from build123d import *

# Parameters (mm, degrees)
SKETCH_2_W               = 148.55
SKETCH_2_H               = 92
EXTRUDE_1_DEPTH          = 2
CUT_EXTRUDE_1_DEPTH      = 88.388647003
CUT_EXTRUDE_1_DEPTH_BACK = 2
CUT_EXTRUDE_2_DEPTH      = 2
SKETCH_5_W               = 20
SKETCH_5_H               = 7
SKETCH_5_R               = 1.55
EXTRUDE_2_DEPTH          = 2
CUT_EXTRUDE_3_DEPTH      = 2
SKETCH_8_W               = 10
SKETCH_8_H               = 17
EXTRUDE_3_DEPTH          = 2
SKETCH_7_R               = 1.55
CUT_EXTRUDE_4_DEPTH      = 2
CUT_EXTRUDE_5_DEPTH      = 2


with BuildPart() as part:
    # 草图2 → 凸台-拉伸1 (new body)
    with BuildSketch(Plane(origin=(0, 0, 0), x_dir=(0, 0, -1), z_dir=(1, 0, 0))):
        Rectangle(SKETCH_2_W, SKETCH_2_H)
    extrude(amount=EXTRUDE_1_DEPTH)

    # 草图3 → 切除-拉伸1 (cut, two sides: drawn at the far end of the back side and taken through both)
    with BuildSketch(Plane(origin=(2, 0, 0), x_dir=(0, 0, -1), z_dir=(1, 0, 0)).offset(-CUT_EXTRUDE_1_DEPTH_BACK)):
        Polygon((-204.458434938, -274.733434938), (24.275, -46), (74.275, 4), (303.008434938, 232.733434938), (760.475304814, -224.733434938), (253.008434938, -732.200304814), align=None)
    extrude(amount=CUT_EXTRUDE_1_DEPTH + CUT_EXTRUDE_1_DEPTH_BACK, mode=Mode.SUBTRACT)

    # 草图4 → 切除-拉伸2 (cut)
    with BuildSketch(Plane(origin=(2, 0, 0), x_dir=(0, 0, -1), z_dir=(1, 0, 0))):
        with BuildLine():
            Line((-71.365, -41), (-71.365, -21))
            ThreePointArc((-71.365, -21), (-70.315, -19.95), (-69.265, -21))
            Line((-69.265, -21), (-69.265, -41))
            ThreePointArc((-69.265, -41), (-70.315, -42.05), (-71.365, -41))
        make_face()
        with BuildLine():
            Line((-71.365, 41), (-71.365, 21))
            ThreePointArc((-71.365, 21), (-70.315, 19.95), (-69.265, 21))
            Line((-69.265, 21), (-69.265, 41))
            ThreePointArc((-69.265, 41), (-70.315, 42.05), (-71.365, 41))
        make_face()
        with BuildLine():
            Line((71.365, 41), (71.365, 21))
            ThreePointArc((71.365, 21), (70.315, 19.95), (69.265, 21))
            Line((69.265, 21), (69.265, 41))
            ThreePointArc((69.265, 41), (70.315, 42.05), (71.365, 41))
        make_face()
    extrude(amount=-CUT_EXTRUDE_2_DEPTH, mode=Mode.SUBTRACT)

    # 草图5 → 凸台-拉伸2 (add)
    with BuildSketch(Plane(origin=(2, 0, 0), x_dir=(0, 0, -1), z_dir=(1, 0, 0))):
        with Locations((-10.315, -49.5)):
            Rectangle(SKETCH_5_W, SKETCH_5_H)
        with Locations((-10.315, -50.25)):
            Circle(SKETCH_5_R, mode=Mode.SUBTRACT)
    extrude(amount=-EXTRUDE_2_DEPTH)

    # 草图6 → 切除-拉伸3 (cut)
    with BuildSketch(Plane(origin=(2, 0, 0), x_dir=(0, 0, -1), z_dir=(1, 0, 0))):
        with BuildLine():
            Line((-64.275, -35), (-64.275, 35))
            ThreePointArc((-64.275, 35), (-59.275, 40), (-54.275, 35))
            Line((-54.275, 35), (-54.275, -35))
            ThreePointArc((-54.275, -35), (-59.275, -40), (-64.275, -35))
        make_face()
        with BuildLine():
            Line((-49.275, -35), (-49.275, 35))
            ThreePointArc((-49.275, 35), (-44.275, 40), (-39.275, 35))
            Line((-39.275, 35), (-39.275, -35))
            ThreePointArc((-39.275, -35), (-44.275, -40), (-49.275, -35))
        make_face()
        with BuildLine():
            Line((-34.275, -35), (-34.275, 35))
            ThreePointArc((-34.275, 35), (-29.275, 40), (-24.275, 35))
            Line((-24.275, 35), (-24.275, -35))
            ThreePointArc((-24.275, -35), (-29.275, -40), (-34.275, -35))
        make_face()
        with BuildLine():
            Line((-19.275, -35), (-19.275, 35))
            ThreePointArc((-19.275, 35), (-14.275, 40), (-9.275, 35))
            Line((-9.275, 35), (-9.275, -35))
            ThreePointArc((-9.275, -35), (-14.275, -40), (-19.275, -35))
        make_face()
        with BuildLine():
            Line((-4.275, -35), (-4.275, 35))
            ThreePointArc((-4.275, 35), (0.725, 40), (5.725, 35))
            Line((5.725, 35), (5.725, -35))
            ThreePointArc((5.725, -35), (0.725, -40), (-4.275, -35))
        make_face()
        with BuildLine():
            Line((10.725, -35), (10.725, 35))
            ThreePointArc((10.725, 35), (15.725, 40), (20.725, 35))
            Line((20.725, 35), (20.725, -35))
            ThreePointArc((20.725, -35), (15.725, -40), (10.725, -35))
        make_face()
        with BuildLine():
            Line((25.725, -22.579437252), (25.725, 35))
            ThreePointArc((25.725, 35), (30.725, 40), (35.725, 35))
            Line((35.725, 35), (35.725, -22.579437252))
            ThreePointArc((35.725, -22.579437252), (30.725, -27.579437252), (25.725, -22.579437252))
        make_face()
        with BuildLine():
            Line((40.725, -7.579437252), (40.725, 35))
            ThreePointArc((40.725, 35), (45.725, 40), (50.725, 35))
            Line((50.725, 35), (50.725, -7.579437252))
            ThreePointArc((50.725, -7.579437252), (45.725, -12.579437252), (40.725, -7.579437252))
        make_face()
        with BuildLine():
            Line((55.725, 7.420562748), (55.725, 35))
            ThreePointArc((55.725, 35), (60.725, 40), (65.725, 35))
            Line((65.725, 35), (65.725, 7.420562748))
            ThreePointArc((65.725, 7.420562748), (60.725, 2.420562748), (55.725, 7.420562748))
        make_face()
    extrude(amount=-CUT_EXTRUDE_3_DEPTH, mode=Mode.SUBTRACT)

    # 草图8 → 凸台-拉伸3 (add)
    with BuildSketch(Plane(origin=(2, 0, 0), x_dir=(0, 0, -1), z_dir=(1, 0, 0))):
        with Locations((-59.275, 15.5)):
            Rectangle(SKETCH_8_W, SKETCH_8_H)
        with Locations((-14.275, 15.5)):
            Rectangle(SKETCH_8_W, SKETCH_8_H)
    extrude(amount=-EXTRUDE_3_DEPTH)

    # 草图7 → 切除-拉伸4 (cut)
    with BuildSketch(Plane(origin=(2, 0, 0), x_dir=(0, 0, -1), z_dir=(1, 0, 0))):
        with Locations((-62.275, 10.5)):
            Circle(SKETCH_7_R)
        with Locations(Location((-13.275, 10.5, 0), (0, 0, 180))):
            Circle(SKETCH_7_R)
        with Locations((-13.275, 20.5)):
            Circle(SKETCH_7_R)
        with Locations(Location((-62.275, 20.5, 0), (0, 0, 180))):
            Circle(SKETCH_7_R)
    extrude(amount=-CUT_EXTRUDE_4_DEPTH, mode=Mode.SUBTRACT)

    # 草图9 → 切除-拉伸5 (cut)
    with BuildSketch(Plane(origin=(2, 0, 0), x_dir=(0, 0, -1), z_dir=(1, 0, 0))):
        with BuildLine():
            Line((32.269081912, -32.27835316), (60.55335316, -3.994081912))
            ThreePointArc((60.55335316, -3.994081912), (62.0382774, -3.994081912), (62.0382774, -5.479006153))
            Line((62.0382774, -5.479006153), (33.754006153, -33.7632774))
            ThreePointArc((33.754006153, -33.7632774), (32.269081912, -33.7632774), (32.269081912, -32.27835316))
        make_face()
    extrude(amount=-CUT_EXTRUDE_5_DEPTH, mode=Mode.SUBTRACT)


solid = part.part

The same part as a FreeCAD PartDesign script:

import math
import FreeCAD as App
import Part
import Sketcher
from FreeCAD import Vector
Q = App.Units.Quantity


def add_polygon(sketch, points):
    """Adds a closed chain of lines whose ends are joined by coincident constraints."""
    first, n = sketch.GeometryCount, len(points)
    for a, b in zip(points, points[1:] + points[:1]):
        sketch.addGeometry(Part.LineSegment(App.Vector(*a, 0), App.Vector(*b, 0)), False)
    for i in range(n):
        sketch.addConstraint(Sketcher.Constraint("Coincident", first + i, 2, first + (i + 1) % n, 1))

doc = App.newDocument("Part")
body = doc.addObject("PartDesign::Body", "Body")

sketch1 = body.newObject("Sketcher::SketchObject", "Sketch")
sketch1.AttachmentSupport = (doc.getObject("YZ_Plane"), [""])
sketch1.MapMode = "FlatFace"
add_polygon(sketch1, [(46, 74.275), (-46, 74.275), (-46, -74.275), (46, -74.275)])
sketch1.addConstraint(Sketcher.Constraint("Horizontal", 0))
sketch1.addConstraint(Sketcher.Constraint("Vertical", 1))
sketch1.addConstraint(Sketcher.Constraint("Horizontal", 2))
sketch1.addConstraint(Sketcher.Constraint("Vertical", 3))
sketch1.addConstraint(Sketcher.Constraint("Symmetric", 0, 2, 2, 2, -1, 1))
sketch1.addConstraint(Sketcher.Constraint("DistanceX", 0, 2, 0, 1, 92.0))
sketch1.addConstraint(Sketcher.Constraint("DistanceY", 1, 2, 1, 1, 148.55))
pad1 = body.newObject("PartDesign::Pad", "Pad")
pad1.Profile = sketch1
pad1.Length = 2

sketch2 = body.newObject("Sketcher::SketchObject", "Sketch001")
sketch2.AttachmentSupport = (doc.getObject("YZ_Plane"), [""])
sketch2.MapMode = "FlatFace"
sketch2.AttachmentOffset = App.Placement(Vector(0, 0, 2), App.Rotation())
add_polygon(sketch2, [(232.733435, -303.008435), (-274.733435, 204.458435), (-732.200305, -253.008435), (-224.733435, -760.475305)])
sketch2.addConstraint(Sketcher.Constraint("Perpendicular", 0, 1))
sketch2.addConstraint(Sketcher.Constraint("Perpendicular", 1, 2))
sketch2.addConstraint(Sketcher.Constraint("Perpendicular", 2, 3))
sketch2.addConstraint(Sketcher.Constraint("Angle", 0, Q("135 deg")))
sketch2.addConstraint(Sketcher.Constraint("DistanceX", 0, 2, 2, 2, 50.0))
sketch2.addConstraint(Sketcher.Constraint("Distance", 0, 717.66653))
sketch2.addConstraint(Sketcher.Constraint("DistanceX", 0, 2, -1, 1, 274.733435))
sketch2.addConstraint(Sketcher.Constraint("DistanceY", -1, 1, 0, 2, 204.458435))
pocket1 = body.newObject("PartDesign::Pocket", "Pocket")
pocket1.Profile = sketch2
pocket1.Type = "ThroughAll"
pocket1.Midplane = True

sketch3 = body.newObject("Sketcher::SketchObject", "Sketch002")
sketch3.AttachmentSupport = (doc.getObject("YZ_Plane"), [""])
sketch3.MapMode = "FlatFace"
sketch3.AttachmentOffset = App.Placement(Vector(0, 0, 2), App.Rotation())
sketch3.addGeometry(Part.LineSegment(Vector(-21, 71.365, 0), Vector(-41, 71.365, 0)), False)
sketch3.addGeometry(Part.ArcOfCircle(Part.Circle(Vector(-41, 70.315, 0), Vector(0, 0, 1), 1.05), math.radians(90), math.radians(270)), False)
sketch3.addGeometry(Part.LineSegment(Vector(-41, 69.265, 0), Vector(-21, 69.265, 0)), False)
sketch3.addGeometry(Part.ArcOfCircle(Part.Circle(Vector(-21, 70.315, 0), Vector(0, 0, 1), 1.05), math.radians(-90), math.radians(90)), False)
sketch3.addGeometry(Part.LineSegment(Vector(41, 71.365, 0), Vector(21, 71.365, 0)), False)
sketch3.addGeometry(Part.ArcOfCircle(Part.Circle(Vector(21, 70.315, 0), Vector(0, 0, 1), 1.05), math.radians(90), math.radians(270)), False)
sketch3.addGeometry(Part.LineSegment(Vector(21, 69.265, 0), Vector(41, 69.265, 0)), False)
sketch3.addGeometry(Part.ArcOfCircle(Part.Circle(Vector(41, 70.315, 0), Vector(0, 0, 1), 1.05), math.radians(-90), math.radians(90)), False)
sketch3.addGeometry(Part.LineSegment(Vector(21, -71.365, 0), Vector(41, -71.365, 0)), False)
sketch3.addGeometry(Part.ArcOfCircle(Part.Circle(Vector(41, -70.315, 0), Vector(0, 0, 1), 1.05), math.radians(-90), math.radians(90)), False)
sketch3.addGeometry(Part.LineSegment(Vector(41, -69.265, 0), Vector(21, -69.265, 0)), False)
sketch3.addGeometry(Part.ArcOfCircle(Part.Circle(Vector(21, -70.315, 0), Vector(0, 0, 1), 1.05), math.radians(90), math.radians(270)), False)
sketch3.addConstraint(Sketcher.Constraint("Tangent", 0, 2, 1, 1))
sketch3.addConstraint(Sketcher.Constraint("Tangent", 1, 2, 2, 1))
sketch3.addConstraint(Sketcher.Constraint("Tangent", 2, 2, 3, 1))
sketch3.addConstraint(Sketcher.Constraint("Tangent", 3, 2, 0, 1))
sketch3.addConstraint(Sketcher.Constraint("Tangent", 4, 2, 5, 1))
sketch3.addConstraint(Sketcher.Constraint("Tangent", 5, 2, 6, 1))
sketch3.addConstraint(Sketcher.Constraint("Tangent", 6, 2, 7, 1))
sketch3.addConstraint(Sketcher.Constraint("Tangent", 7, 2, 4, 1))
sketch3.addConstraint(Sketcher.Constraint("Tangent", 8, 2, 9, 1))
sketch3.addConstraint(Sketcher.Constraint("Tangent", 9, 2, 10, 1))
sketch3.addConstraint(Sketcher.Constraint("Tangent", 10, 2, 11, 1))
sketch3.addConstraint(Sketcher.Constraint("Tangent", 11, 2, 8, 1))
sketch3.addConstraint(Sketcher.Constraint("Horizontal", 0))
sketch3.addConstraint(Sketcher.Constraint("Horizontal", 2))
sketch3.addConstraint(Sketcher.Constraint("Horizontal", 4))
sketch3.addConstraint(Sketcher.Constraint("Horizontal", 6))
sketch3.addConstraint(Sketcher.Constraint("Horizontal", 8))
sketch3.addConstraint(Sketcher.Constraint("Horizontal", 10))
sketch3.addConstraint(Sketcher.Constraint("Equal", 3, 5))
sketch3.addConstraint(Sketcher.Constraint("Equal", 7, 9))
sketch3.addConstraint(Sketcher.Constraint("Symmetric", 1, 3, 9, 3, -1, 1))
sketch3.addConstraint(Sketcher.Constraint("Symmetric", 3, 3, 5, 3, -2))
sketch3.addConstraint(Sketcher.Constraint("Vertical", 7, 3, 9, 3))
sketch3.addConstraint(Sketcher.Constraint("Vertical", 5, 3, 11, 3))
sketch3.addConstraint(Sketcher.Constraint("DistanceX", 0, 2, 0, 1, 20.0))
sketch3.addConstraint(Sketcher.Constraint("Radius", 1, 1.05))
sketch3.addConstraint(Sketcher.Constraint("DistanceX", 1, 3, -1, 1, 41.0))
sketch3.addConstraint(Sketcher.Constraint("DistanceY", 9, 3, 7, 3, 140.63))
pocket2 = body.newObject("PartDesign::Pocket", "Pocket001")
pocket2.Profile = sketch3
pocket2.Length = 2

sketch4 = body.newObject("Sketcher::SketchObject", "Sketch003")
sketch4.AttachmentSupport = (doc.getObject("YZ_Plane"), [""])
sketch4.MapMode = "FlatFace"
sketch4.AttachmentOffset = App.Placement(Vector(0, 0, 2), App.Rotation())
add_polygon(sketch4, [(-46, 20.315), (-53, 20.315), (-53, 0.315), (-46, 0.315)])
sketch4.addGeometry(Part.Circle(Vector(-50.25, 10.315, 0), Vector(0, 0, 1), 1.55), False)
sketch4.addConstraint(Sketcher.Constraint("Horizontal", 0))
sketch4.addConstraint(Sketcher.Constraint("Vertical", 1))
sketch4.addConstraint(Sketcher.Constraint("Horizontal", 2))
sketch4.addConstraint(Sketcher.Constraint("Vertical", 3))
sketch4.addConstraint(Sketcher.Constraint("Diameter", 4, 3.1))
sketch4.addConstraint(Sketcher.Constraint("DistanceX", 0, 2, 0, 1, 7.0))
sketch4.addConstraint(Sketcher.Constraint("DistanceY", 1, 2, 1, 1, 20.0))
sketch4.addConstraint(Sketcher.Constraint("DistanceX", 0, 2, -1, 1, 53.0))
sketch4.addConstraint(Sketcher.Constraint("DistanceY", 4, 3, 0, 2, 10.0))
sketch4.addConstraint(Sketcher.Constraint("DistanceX", 4, 3, -1, 1, 50.25))
sketch4.addConstraint(Sketcher.Constraint("DistanceY", -1, 1, 4, 3, 10.315))
pad2 = body.newObject("PartDesign::Pad", "Pad001")
pad2.Profile = sketch4
pad2.Length = 2
pad2.Reversed = True

sketch5 = body.newObject("Sketcher::SketchObject", "Sketch004")
sketch5.AttachmentSupport = (doc.getObject("YZ_Plane"), [""])
sketch5.MapMode = "FlatFace"
sketch5.AttachmentOffset = App.Placement(Vector(0, 0, 2), App.Rotation())
sketch5.addGeometry(Part.LineSegment(Vector(35, 64.275, 0), Vector(-35, 64.275, 0)), False)
sketch5.addGeometry(Part.ArcOfCircle(Part.Circle(Vector(-35, 59.275, 0), Vector(0, 0, 1), 5), math.radians(90), math.radians(270)), False)
sketch5.addGeometry(Part.LineSegment(Vector(-35, 54.275, 0), Vector(35, 54.275, 0)), False)
sketch5.addGeometry(Part.ArcOfCircle(Part.Circle(Vector(35, 59.275, 0), Vector(0, 0, 1), 5), math.radians(-90), math.radians(90)), False)
sketch5.addGeometry(Part.LineSegment(Vector(35, 49.275, 0), Vector(-35, 49.275, 0)), False)
sketch5.addGeometry(Part.ArcOfCircle(Part.Circle(Vector(-35, 44.275, 0), Vector(0, 0, 1), 5), math.radians(90), math.radians(270)), False)
sketch5.addGeometry(Part.LineSegment(Vector(-35, 39.275, 0), Vector(35, 39.275, 0)), False)
sketch5.addGeometry(Part.ArcOfCircle(Part.Circle(Vector(35, 44.275, 0), Vector(0, 0, 1), 5), math.radians(-90), math.radians(90)), False)
sketch5.addGeometry(Part.LineSegment(Vector(35, 34.275, 0), Vector(-35, 34.275, 0)), False)
sketch5.addGeometry(Part.ArcOfCircle(Part.Circle(Vector(-35, 29.275, 0), Vector(0, 0, 1), 5), math.radians(90), math.radians(270)), False)
sketch5.addGeometry(Part.LineSegment(Vector(-35, 24.275, 0), Vector(35, 24.275, 0)), False)
sketch5.addGeometry(Part.ArcOfCircle(Part.Circle(Vector(35, 29.275, 0), Vector(0, 0, 1), 5), math.radians(-90), math.radians(90)), False)
sketch5.addGeometry(Part.LineSegment(Vector(35, 19.275, 0), Vector(-35, 19.275, 0)), False)
sketch5.addGeometry(Part.ArcOfCircle(Part.Circle(Vector(-35, 14.275, 0), Vector(0, 0, 1), 5), math.radians(90), math.radians(270)), False)
sketch5.addGeometry(Part.LineSegment(Vector(-35, 9.275, 0), Vector(35, 9.275, 0)), False)
sketch5.addGeometry(Part.ArcOfCircle(Part.Circle(Vector(35, 14.275, 0), Vector(0, 0, 1), 5), math.radians(-90), math.radians(90)), False)
sketch5.addGeometry(Part.LineSegment(Vector(35, 4.275, 0), Vector(-35, 4.275, 0)), False)
sketch5.addGeometry(Part.ArcOfCircle(Part.Circle(Vector(-35, -0.725, 0), Vector(0, 0, 1), 5), math.radians(90), math.radians(270)), False)
sketch5.addGeometry(Part.LineSegment(Vector(-35, -5.725, 0), Vector(35, -5.725, 0)), False)
sketch5.addGeometry(Part.ArcOfCircle(Part.Circle(Vector(35, -0.725, 0), Vector(0, 0, 1), 5), math.radians(-90), math.radians(90)), False)
sketch5.addGeometry(Part.LineSegment(Vector(35, -10.725, 0), Vector(-35, -10.725, 0)), False)
sketch5.addGeometry(Part.ArcOfCircle(Part.Circle(Vector(-35, -15.725, 0), Vector(0, 0, 1), 5), math.radians(90), math.radians(270)), False)
sketch5.addGeometry(Part.LineSegment(Vector(-35, -20.725, 0), Vector(35, -20.725, 0)), False)
sketch5.addGeometry(Part.ArcOfCircle(Part.Circle(Vector(35, -15.725, 0), Vector(0, 0, 1), 5), math.radians(-90), math.radians(90)), False)
sketch5.addGeometry(Part.LineSegment(Vector(35, -25.725, 0), Vector(-22.579437, -25.725, 0)), False)
sketch5.addGeometry(Part.ArcOfCircle(Part.Circle(Vector(-22.579437, -30.725, 0), Vector(0, 0, 1), 5), math.radians(90), math.radians(270)), False)
sketch5.addGeometry(Part.LineSegment(Vector(-22.579437, -35.725, 0), Vector(35, -35.725, 0)), False)
sketch5.addGeometry(Part.ArcOfCircle(Part.Circle(Vector(35, -30.725, 0), Vector(0, 0, 1), 5), math.radians(-90), math.radians(90)), False)
sketch5.addGeometry(Part.LineSegment(Vector(35, -40.725, 0), Vector(-7.579437, -40.725, 0)), False)
sketch5.addGeometry(Part.ArcOfCircle(Part.Circle(Vector(-7.579437, -45.725, 0), Vector(0, 0, 1), 5), math.radians(90), math.radians(270)), False)
sketch5.addGeometry(Part.LineSegment(Vector(-7.579437, -50.725, 0), Vector(35, -50.725, 0)), False)
sketch5.addGeometry(Part.ArcOfCircle(Part.Circle(Vector(35, -45.725, 0), Vector(0, 0, 1), 5), math.radians(-90), math.radians(90)), False)
sketch5.addGeometry(Part.LineSegment(Vector(35, -55.725, 0), Vector(7.420563, -55.725, 0)), False)
sketch5.addGeometry(Part.ArcOfCircle(Part.Circle(Vector(7.420563, -60.725, 0), Vector(0, 0, 1), 5), math.radians(90), math.radians(270)), False)
sketch5.addGeometry(Part.LineSegment(Vector(7.420563, -65.725, 0), Vector(35, -65.725, 0)), False)
sketch5.addGeometry(Part.ArcOfCircle(Part.Circle(Vector(35, -60.725, 0), Vector(0, 0, 1), 5), math.radians(-90), math.radians(90)), False)
sketch5.addConstraint(Sketcher.Constraint("Tangent", 0, 2, 1, 1))
sketch5.addConstraint(Sketcher.Constraint("Tangent", 1, 2, 2, 1))
sketch5.addConstraint(Sketcher.Constraint("Tangent", 2, 2, 3, 1))
sketch5.addConstraint(Sketcher.Constraint("Tangent", 3, 2, 0, 1))
sketch5.addConstraint(Sketcher.Constraint("Tangent", 4, 2, 5, 1))
sketch5.addConstraint(Sketcher.Constraint("Tangent", 5, 2, 6, 1))
sketch5.addConstraint(Sketcher.Constraint("Tangent", 6, 2, 7, 1))
sketch5.addConstraint(Sketcher.Constraint("Tangent", 7, 2, 4, 1))
sketch5.addConstraint(Sketcher.Constraint("Tangent", 8, 2, 9, 1))
sketch5.addConstraint(Sketcher.Constraint("Tangent", 9, 2, 10, 1))
sketch5.addConstraint(Sketcher.Constraint("Tangent", 10, 2, 11, 1))
sketch5.addConstraint(Sketcher.Constraint("Tangent", 11, 2, 8, 1))
sketch5.addConstraint(Sketcher.Constraint("Tangent", 12, 2, 13, 1))
sketch5.addConstraint(Sketcher.Constraint("Tangent", 13, 2, 14, 1))
sketch5.addConstraint(Sketcher.Constraint("Tangent", 14, 2, 15, 1))
sketch5.addConstraint(Sketcher.Constraint("Tangent", 15, 2, 12, 1))
sketch5.addConstraint(Sketcher.Constraint("Tangent", 16, 2, 17, 1))
sketch5.addConstraint(Sketcher.Constraint("Tangent", 17, 2, 18, 1))
sketch5.addConstraint(Sketcher.Constraint("Tangent", 18, 2, 19, 1))
sketch5.addConstraint(Sketcher.Constraint("Tangent", 19, 2, 16, 1))
sketch5.addConstraint(Sketcher.Constraint("Tangent", 20, 2, 21, 1))
sketch5.addConstraint(Sketcher.Constraint("Tangent", 21, 2, 22, 1))
sketch5.addConstraint(Sketcher.Constraint("Tangent", 22, 2, 23, 1))
sketch5.addConstraint(Sketcher.Constraint("Tangent", 23, 2, 20, 1))
sketch5.addConstraint(Sketcher.Constraint("Tangent", 24, 2, 25, 1))
sketch5.addConstraint(Sketcher.Constraint("Tangent", 25, 2, 26, 1))
sketch5.addConstraint(Sketcher.Constraint("Tangent", 26, 2, 27, 1))
sketch5.addConstraint(Sketcher.Constraint("Tangent", 27, 2, 24, 1))
sketch5.addConstraint(Sketcher.Constraint("Tangent", 28, 2, 29, 1))
sketch5.addConstraint(Sketcher.Constraint("Tangent", 29, 2, 30, 1))
sketch5.addConstraint(Sketcher.Constraint("Tangent", 30, 2, 31, 1))
sketch5.addConstraint(Sketcher.Constraint("Tangent", 31, 2, 28, 1))
sketch5.addConstraint(Sketcher.Constraint("Tangent", 32, 2, 33, 1))
sketch5.addConstraint(Sketcher.Constraint("Tangent", 33, 2, 34, 1))
sketch5.addConstraint(Sketcher.Constraint("Tangent", 34, 2, 35, 1))
sketch5.addConstraint(Sketcher.Constraint("Tangent", 35, 2, 32, 1))
sketch5.addConstraint(Sketcher.Constraint("Horizontal", 0))
sketch5.addConstraint(Sketcher.Constraint("Horizontal", 2))
sketch5.addConstraint(Sketcher.Constraint("Horizontal", 4))
sketch5.addConstraint(Sketcher.Constraint("Horizontal", 6))
sketch5.addConstraint(Sketcher.Constraint("Horizontal", 8))
sketch5.addConstraint(Sketcher.Constraint("Horizontal", 10))
sketch5.addConstraint(Sketcher.Constraint("Horizontal", 12))
sketch5.addConstraint(Sketcher.Constraint("Horizontal", 14))
sketch5.addConstraint(Sketcher.Constraint("Horizontal", 16))
sketch5.addConstraint(Sketcher.Constraint("Horizontal", 18))
sketch5.addConstraint(Sketcher.Constraint("Horizontal", 20))
sketch5.addConstraint(Sketcher.Constraint("Horizontal", 22))
sketch5.addConstraint(Sketcher.Constraint("Horizontal", 24))
sketch5.addConstraint(Sketcher.Constraint("Horizontal", 26))
sketch5.addConstraint(Sketcher.Constraint("Horizontal", 28))
sketch5.addConstraint(Sketcher.Constraint("Horizontal", 30))
sketch5.addConstraint(Sketcher.Constraint("Horizontal", 32))
sketch5.addConstraint(Sketcher.Constraint("Horizontal", 34))
sketch5.addConstraint(Sketcher.Constraint("Equal", 3, 5))
sketch5.addConstraint(Sketcher.Constraint("Equal", 7, 9))
sketch5.addConstraint(Sketcher.Constraint("Equal", 11, 13))
sketch5.addConstraint(Sketcher.Constraint("Equal", 15, 17))
sketch5.addConstraint(Sketcher.Constraint("Equal", 19, 21))
sketch5.addConstraint(Sketcher.Constraint("Equal", 23, 25))
sketch5.addConstraint(Sketcher.Constraint("Equal", 27, 29))
sketch5.addConstraint(Sketcher.Constraint("Equal", 31, 33))
sketch5.addConstraint(Sketcher.Constraint("Vertical", 1, 3, 5, 3))
sketch5.addConstraint(Sketcher.Constraint("Vertical", 3, 3, 7, 3))
sketch5.addConstraint(Sketcher.Constraint("Vertical", 5, 3, 9, 3))
sketch5.addConstraint(Sketcher.Constraint("Vertical", 7, 3, 11, 3))
sketch5.addConstraint(Sketcher.Constraint("Vertical", 9, 3, 13, 3))
sketch5.addConstraint(Sketcher.Constraint("Vertical", 11, 3, 15, 3))
sketch5.addConstraint(Sketcher.Constraint("Vertical", 13, 3, 17, 3))
sketch5.addConstraint(Sketcher.Constraint("Vertical", 15, 3, 19, 3))
sketch5.addConstraint(Sketcher.Constraint("Vertical", 17, 3, 21, 3))
sketch5.addConstraint(Sketcher.Constraint("Vertical", 19, 3, 23, 3))
sketch5.addConstraint(Sketcher.Constraint("Vertical", 23, 3, 27, 3))
sketch5.addConstraint(Sketcher.Constraint("Vertical", 27, 3, 31, 3))
sketch5.addConstraint(Sketcher.Constraint("Vertical", 31, 3, 35, 3))
sketch5.addConstraint(Sketcher.Constraint("Radius", 1, 5.0))
sketch5.addConstraint(Sketcher.Constraint("DistanceX", 0, 2, 0, 1, 70.0))
sketch5.addConstraint(Sketcher.Constraint("DistanceX", 1, 3, -1, 1, 35.0))
sketch5.addConstraint(Sketcher.Constraint("DistanceY", 5, 3, 1, 3, 15.0))
sketch5.addConstraint(Sketcher.Constraint("DistanceY", 9, 3, 5, 3, 15.0))
sketch5.addConstraint(Sketcher.Constraint("DistanceY", 13, 3, 9, 3, 15.0))
sketch5.addConstraint(Sketcher.Constraint("DistanceY", 17, 3, 13, 3, 15.0))
sketch5.addConstraint(Sketcher.Constraint("DistanceY", 21, 3, 17, 3, 15.0))
sketch5.addConstraint(Sketcher.Constraint("DistanceY", 25, 3, 21, 3, 15.0))
sketch5.addConstraint(Sketcher.Constraint("DistanceX", 25, 3, 29, 3, 15.0))
sketch5.addConstraint(Sketcher.Constraint("DistanceY", 29, 3, 25, 3, 15.0))
sketch5.addConstraint(Sketcher.Constraint("DistanceX", 29, 3, 33, 3, 15.0))
sketch5.addConstraint(Sketcher.Constraint("DistanceY", 33, 3, 29, 3, 15.0))
sketch5.addConstraint(Sketcher.Constraint("DistanceY", -1, 1, 1, 3, 59.275))
sketch5.addConstraint(Sketcher.Constraint("DistanceX", 24, 2, 24, 1, 57.579437))
pocket3 = body.newObject("PartDesign::Pocket", "Pocket002")
pocket3.Profile = sketch5
pocket3.Length = 2

sketch6 = body.newObject("Sketcher::SketchObject", "Sketch005")
sketch6.AttachmentSupport = (doc.getObject("YZ_Plane"), [""])
sketch6.MapMode = "FlatFace"
sketch6.AttachmentOffset = App.Placement(Vector(0, 0, 2), App.Rotation())
add_polygon(sketch6, [(24, 64.275), (7, 64.275), (7, 54.275), (24, 54.275)])
add_polygon(sketch6, [(24, 19.275), (7, 19.275), (7, 9.275), (24, 9.275)])
sketch6.addConstraint(Sketcher.Constraint("Horizontal", 0))
sketch6.addConstraint(Sketcher.Constraint("Vertical", 1))
sketch6.addConstraint(Sketcher.Constraint("Horizontal", 2))
sketch6.addConstraint(Sketcher.Constraint("Vertical", 3))
sketch6.addConstraint(Sketcher.Constraint("Horizontal", 4))
sketch6.addConstraint(Sketcher.Constraint("Vertical", 5))
sketch6.addConstraint(Sketcher.Constraint("Horizontal", 6))
sketch6.addConstraint(Sketcher.Constraint("Vertical", 7))
sketch6.addConstraint(Sketcher.Constraint("Vertical", 1, 2, 4, 2))
sketch6.addConstraint(Sketcher.Constraint("Vertical", 3, 2, 6, 2))
sketch6.addConstraint(Sketcher.Constraint("Equal", 3, 5))
sketch6.addConstraint(Sketcher.Constraint("DistanceX", 0, 2, 0, 1, 17.0))
sketch6.addConstraint(Sketcher.Constraint("DistanceY", 1, 2, 1, 1, 10.0))
sketch6.addConstraint(Sketcher.Constraint("DistanceX", -1, 1, 0, 2, 7.0))
sketch6.addConstraint(Sketcher.Constraint("DistanceY", 4, 2, 1, 2, 35.0))
sketch6.addConstraint(Sketcher.Constraint("DistanceY", -1, 1, 0, 2, 64.275))
pad3 = body.newObject("PartDesign::Pad", "Pad002")
pad3.Profile = sketch6
pad3.Length = 2
pad3.Reversed = True

sketch7 = body.newObject("Sketcher::SketchObject", "Sketch006")
sketch7.AttachmentSupport = (doc.getObject("YZ_Plane"), [""])
sketch7.MapMode = "FlatFace"
sketch7.AttachmentOffset = App.Placement(Vector(0, 0, 2), App.Rotation())
sketch7.addGeometry(Part.Circle(Vector(10.5, 62.275, 0), Vector(0, 0, 1), 1.55), False)
sketch7.addGeometry(Part.Circle(Vector(10.5, 13.275, 0), Vector(0, 0, 1), 1.55), False)
sketch7.addGeometry(Part.Circle(Vector(20.5, 13.275, 0), Vector(0, 0, 1), 1.55), False)
sketch7.addGeometry(Part.Circle(Vector(20.5, 62.275, 0), Vector(0, 0, 1), 1.55), False)
sketch7.addConstraint(Sketcher.Constraint("Equal", 0, 1))
sketch7.addConstraint(Sketcher.Constraint("Equal", 1, 2))
sketch7.addConstraint(Sketcher.Constraint("Equal", 2, 3))
sketch7.addConstraint(Sketcher.Constraint("Horizontal", 1, 3, 2, 3))
sketch7.addConstraint(Sketcher.Constraint("Horizontal", 0, 3, 3, 3))
sketch7.addConstraint(Sketcher.Constraint("Vertical", 0, 3, 1, 3))
sketch7.addConstraint(Sketcher.Constraint("Vertical", 2, 3, 3, 3))
sketch7.addConstraint(Sketcher.Constraint("Diameter", 0, 3.1))
sketch7.addConstraint(Sketcher.Constraint("DistanceY", 1, 3, 0, 3, 49.0))
sketch7.addConstraint(Sketcher.Constraint("DistanceX", 1, 3, 2, 3, 10.0))
sketch7.addConstraint(Sketcher.Constraint("DistanceX", -1, 1, 0, 3, 10.5))
sketch7.addConstraint(Sketcher.Constraint("DistanceY", -1, 1, 0, 3, 62.275))
pocket4 = body.newObject("PartDesign::Pocket", "Pocket003")
pocket4.Profile = sketch7
pocket4.Length = 2

sketch8 = body.newObject("Sketcher::SketchObject", "Sketch007")
sketch8.AttachmentSupport = (doc.getObject("YZ_Plane"), [""])
sketch8.MapMode = "FlatFace"
sketch8.AttachmentOffset = App.Placement(Vector(0, 0, 2), App.Rotation())
sketch8.addGeometry(Part.LineSegment(Vector(-3.994082, -60.553353, 0), Vector(-32.278353, -32.269082, 0)), False)
sketch8.addGeometry(Part.ArcOfCircle(Part.Circle(Vector(-33.020815, -33.011544, 0), Vector(0, 0, 1), 1.05), math.radians(45), math.radians(225)), False)
sketch8.addGeometry(Part.LineSegment(Vector(-33.763277, -33.754006, 0), Vector(-5.479006, -62.038277, 0)), False)
sketch8.addGeometry(Part.ArcOfCircle(Part.Circle(Vector(-4.736544, -61.295815, 0), Vector(0, 0, 1), 1.05), math.radians(-135), math.radians(45)), False)
sketch8.addConstraint(Sketcher.Constraint("Tangent", 0, 2, 1, 1))
sketch8.addConstraint(Sketcher.Constraint("Tangent", 1, 2, 2, 1))
sketch8.addConstraint(Sketcher.Constraint("Tangent", 2, 2, 3, 1))
sketch8.addConstraint(Sketcher.Constraint("Tangent", 3, 2, 0, 1))
sketch8.addConstraint(Sketcher.Constraint("Equal", 1, 3))
sketch8.addConstraint(Sketcher.Constraint("Angle", 0, Q("135 deg")))
sketch8.addConstraint(Sketcher.Constraint("Radius", 1, 1.05))
sketch8.addConstraint(Sketcher.Constraint("Distance", 0, 40.0))
sketch8.addConstraint(Sketcher.Constraint("DistanceY", 0, 2, -1, 1, 32.269082))
sketch8.addConstraint(Sketcher.Constraint("DistanceX", 3, 2, -1, 1, 3.994082))
pocket5 = body.newObject("PartDesign::Pocket", "Pocket004")
pocket5.Profile = sketch8
pocket5.Length = 2

doc.recompute()
